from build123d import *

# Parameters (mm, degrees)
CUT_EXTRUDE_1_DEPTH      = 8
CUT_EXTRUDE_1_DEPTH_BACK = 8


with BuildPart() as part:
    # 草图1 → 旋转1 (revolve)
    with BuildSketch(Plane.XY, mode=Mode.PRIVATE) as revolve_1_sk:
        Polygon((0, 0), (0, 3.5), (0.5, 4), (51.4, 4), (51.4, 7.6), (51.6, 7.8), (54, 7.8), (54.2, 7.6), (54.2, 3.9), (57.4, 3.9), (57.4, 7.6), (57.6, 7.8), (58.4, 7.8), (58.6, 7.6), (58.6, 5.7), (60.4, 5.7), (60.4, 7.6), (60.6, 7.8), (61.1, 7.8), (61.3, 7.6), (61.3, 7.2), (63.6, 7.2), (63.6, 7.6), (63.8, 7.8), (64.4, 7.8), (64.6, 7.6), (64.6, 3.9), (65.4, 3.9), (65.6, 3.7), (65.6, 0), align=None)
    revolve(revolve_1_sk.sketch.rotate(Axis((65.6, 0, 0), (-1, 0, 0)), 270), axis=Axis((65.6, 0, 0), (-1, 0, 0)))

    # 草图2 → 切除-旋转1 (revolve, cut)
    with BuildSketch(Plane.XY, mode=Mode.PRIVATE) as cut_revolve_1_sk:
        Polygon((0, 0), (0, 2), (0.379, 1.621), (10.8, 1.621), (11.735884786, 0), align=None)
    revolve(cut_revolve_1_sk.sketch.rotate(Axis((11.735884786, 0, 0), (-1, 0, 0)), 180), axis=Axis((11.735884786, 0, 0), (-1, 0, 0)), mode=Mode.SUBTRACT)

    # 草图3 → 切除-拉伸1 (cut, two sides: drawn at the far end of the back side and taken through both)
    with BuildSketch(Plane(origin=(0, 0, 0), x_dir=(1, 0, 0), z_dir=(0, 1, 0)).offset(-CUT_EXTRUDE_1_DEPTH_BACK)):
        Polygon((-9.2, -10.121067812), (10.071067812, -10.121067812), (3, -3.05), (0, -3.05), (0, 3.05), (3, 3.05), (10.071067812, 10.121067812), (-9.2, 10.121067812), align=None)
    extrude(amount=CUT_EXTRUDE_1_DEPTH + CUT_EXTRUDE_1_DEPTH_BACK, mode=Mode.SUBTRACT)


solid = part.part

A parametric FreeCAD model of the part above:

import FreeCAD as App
import Part
import Sketcher
from FreeCAD import Vector
Q = App.Units.Quantity


def add_polygon(sketch, points):
    """Adds a closed chain of lines whose ends are joined by coincident constraints."""
    first, n = sketch.GeometryCount, len(points)
    for a, b in zip(points, points[1:] + points[:1]):
        sketch.addGeometry(Part.LineSegment(App.Vector(*a, 0), App.Vector(*b, 0)), False)
    for i in range(n):
        sketch.addConstraint(Sketcher.Constraint("Coincident", first + i, 2, first + (i + 1) % n, 1))

doc = App.newDocument("Part")
body = doc.addObject("PartDesign::Body", "Body")

# Sketch on XY plane
sketch1 = body.newObject("Sketcher::SketchObject", "Sketch")
sketch1.AttachmentSupport = (doc.getObject("XY_Plane"), [""])
sketch1.MapMode = "FlatFace"
add_polygon(sketch1, [(0, 3.5), (0, 0), (65.6, 0), (65.6, 3.7), (65.4, 3.9), (64.6, 3.9), (64.6, 7.6), (64.4, 7.8), (63.8, 7.8), (63.6, 7.6), (63.6, 7.2), (61.3, 7.2), (61.3, 7.6), (61.1, 7.8), (60.6, 7.8), (60.4, 7.6), (60.4, 5.7), (58.6, 5.7), (58.6, 7.6), (58.4, 7.8), (57.6, 7.8), (57.4, 7.6), (57.4, 3.9), (54.2, 3.9), (54.2, 7.6), (54, 7.8), (51.6, 7.8), (51.4, 7.6), (51.4, 4), (0.5, 4)])  # lines 0-29
sketch1.addConstraint([
    Sketcher.Constraint("Vertical", 0),
    Sketcher.Constraint("Horizontal", 1),
    Sketcher.Constraint("Vertical", 2),
    Sketcher.Constraint("Horizontal", 4),
    Sketcher.Constraint("Vertical", 5),
    Sketcher.Constraint("Horizontal", 7),
    Sketcher.Constraint("Vertical", 9),
    Sketcher.Constraint("Horizontal", 10),
    Sketcher.Constraint("Vertical", 11),
    Sketcher.Constraint("Horizontal", 13),
    Sketcher.Constraint("Vertical", 15),
    Sketcher.Constraint("Horizontal", 16),
    Sketcher.Constraint("Vertical", 17),
    Sketcher.Constraint("Horizontal", 19),
    Sketcher.Constraint("Vertical", 21),
    Sketcher.Constraint("Horizontal", 22),
    Sketcher.Constraint("Vertical", 23),
    Sketcher.Constraint("Horizontal", 25),
    Sketcher.Constraint("Vertical", 27),
    Sketcher.Constraint("Horizontal", 28),
    Sketcher.Constraint("Coincident", 0, 2, -1, 1),
    Sketcher.Constraint("Parallel", 3, 6),
    Sketcher.Constraint("Perpendicular", 6, 8),
    Sketcher.Constraint("Perpendicular", 8, 12),
    Sketcher.Constraint("Perpendicular", 12, 14),
    Sketcher.Constraint("Perpendicular", 14, 18),
    Sketcher.Constraint("Perpendicular", 18, 20),
    Sketcher.Constraint("Perpendicular", 20, 24),
    Sketcher.Constraint("Perpendicular", 24, 26),
    Sketcher.Constraint("Parallel", 26, 29),
    Sketcher.Constraint("Horizontal", 5, 2, 8, 2),
    Sketcher.Constraint("Horizontal", 8, 2, 11, 2),
    Sketcher.Constraint("Horizontal", 7, 2, 12, 2),
    Sketcher.Constraint("Horizontal", 11, 2, 14, 2),
    Sketcher.Constraint("Horizontal", 14, 2, 17, 2),
    Sketcher.Constraint("Horizontal", 13, 2, 18, 2),
    Sketcher.Constraint("Horizontal", 17, 2, 20, 2),
    Sketcher.Constraint("Horizontal", 4, 2, 21, 2),
    Sketcher.Constraint("Horizontal", 20, 2, 23, 2),
    Sketcher.Constraint("Horizontal", 19, 2, 24, 2),
    Sketcher.Constraint("Horizontal", 23, 2, 26, 2),
    Sketcher.Constraint("Equal", 4, 19),
    Sketcher.Constraint("Equal", 2, 5),
    Sketcher.Constraint("Equal", 3, 6),
    Sketcher.Constraint("Equal", 6, 8),
    Sketcher.Constraint("DistanceX", 1, 1, 1, 2, 65.6),
    Sketcher.Constraint("DistanceX", 4, 2, 4, 1, 0.8),
    Sketcher.Constraint("DistanceX", 7, 2, 7, 1, 0.6),
    Sketcher.Constraint("DistanceX", 10, 2, 10, 1, 2.3),
    Sketcher.Constraint("DistanceX", 13, 2, 13, 1, 0.5),
    Sketcher.Constraint("DistanceX", 16, 2, 16, 1, 1.8),
    Sketcher.Constraint("DistanceX", 22, 2, 22, 1, 3.2),
    Sketcher.Constraint("DistanceX", 25, 2, 25, 1, 2.4),
    Sketcher.Constraint("DistanceX", 28, 2, 28, 1, 50.9),
    Sketcher.Constraint("DistanceY", 0, 2, 0, 1, 3.5),
    Sketcher.Constraint("DistanceY", 2, 1, 2, 2, 3.7),
    Sketcher.Constraint("DistanceY", 9, 2, 9, 1, 0.4),
    Sketcher.Constraint("DistanceY", 15, 2, 15, 1, 1.9),
    Sketcher.Constraint("DistanceY", 27, 2, 27, 1, 3.6),
])
revolution = body.newObject("PartDesign::Revolution", "Revolution")
revolution.Profile = sketch1
revolution.ReferenceAxis = (sketch1, ["H_Axis"])
revolution.Angle = 360

# Sketch on XY plane
sketch2 = body.newObject("Sketcher::SketchObject", "Sketch001")
sketch2.AttachmentSupport = (doc.getObject("XY_Plane"), [""])
sketch2.MapMode = "FlatFace"
add_polygon(sketch2, [(0, 2), (0, 0), (11.7, 0), (10.8, 1.6), (0.4, 1.6)])  # lines 0-4
sketch2.addConstraint([
    Sketcher.Constraint("Vertical", 0),
    Sketcher.Constraint("Horizontal", 1),
    Sketcher.Constraint("Horizontal", 3),
    Sketcher.Constraint("Coincident", 0, 2, -1, 1),
    Sketcher.Constraint("DistanceY", 0, 2, 0, 1, 2.0),
    Sketcher.Constraint("Angle", 2, Q("120 deg")),
    Sketcher.Constraint("Angle", 4, Q("135 deg")),
    Sketcher.Constraint("DistanceX", -1, 1, 2, 2, 10.8),
    Sketcher.Constraint("DistanceX", 3, 2, 3, 1, 10.421),
])
groove = body.newObject("PartDesign::Groove", "Groove")
groove.Profile = sketch2
groove.ReferenceAxis = (sketch2, ["H_Axis"])
groove.Angle = 360

# Sketch on XZ plane
sketch3 = body.newObject("Sketcher::SketchObject", "Sketch002")
sketch3.AttachmentSupport = (doc.getObject("XZ_Plane"), [""])
sketch3.MapMode = "FlatFace"
add_polygon(sketch3, [(-9.2, 10.1), (10.1, 10.1), (3, 3), (0, 3), (0, -3), (3, -3), (10.1, -10.1), (-9.2, -10.1)])  # lines 0-7
sketch3.addConstraint([
    Sketcher.Constraint("Horizontal", 0),
    Sketcher.Constraint("Horizontal", 2),
    Sketcher.Constraint("Vertical", 3),
    Sketcher.Constraint("Horizontal", 4),
    Sketcher.Constraint("Horizontal", 6),
    Sketcher.Constraint("Vertical", 7),
    Sketcher.Constraint("Symmetric", 2, 2, 3, 2, -1, 1),
    Sketcher.Constraint("Symmetric", 0, 2, 5, 2, -1),
    Sketcher.Constraint("Perpendicular", 1, 5),
    Sketcher.Constraint("Vertical", 1, 2, 4, 2),
    Sketcher.Constraint("DistanceX", 2, 2, 2, 1, 3.0),
    Sketcher.Constraint("Distance", 1, 10.0),
    Sketcher.Constraint("DistanceY", 3, 2, 3, 1, 6.1),
    Sketcher.Constraint("DistanceX", 6, 2, -1, 1, 9.2),
])
pocket1 = body.newObject("PartDesign::Pocket", "Pocket")
pocket1.Profile = sketch3
pocket1.Type = "ThroughAll"
pocket1.Midplane = True

doc.recompute()
